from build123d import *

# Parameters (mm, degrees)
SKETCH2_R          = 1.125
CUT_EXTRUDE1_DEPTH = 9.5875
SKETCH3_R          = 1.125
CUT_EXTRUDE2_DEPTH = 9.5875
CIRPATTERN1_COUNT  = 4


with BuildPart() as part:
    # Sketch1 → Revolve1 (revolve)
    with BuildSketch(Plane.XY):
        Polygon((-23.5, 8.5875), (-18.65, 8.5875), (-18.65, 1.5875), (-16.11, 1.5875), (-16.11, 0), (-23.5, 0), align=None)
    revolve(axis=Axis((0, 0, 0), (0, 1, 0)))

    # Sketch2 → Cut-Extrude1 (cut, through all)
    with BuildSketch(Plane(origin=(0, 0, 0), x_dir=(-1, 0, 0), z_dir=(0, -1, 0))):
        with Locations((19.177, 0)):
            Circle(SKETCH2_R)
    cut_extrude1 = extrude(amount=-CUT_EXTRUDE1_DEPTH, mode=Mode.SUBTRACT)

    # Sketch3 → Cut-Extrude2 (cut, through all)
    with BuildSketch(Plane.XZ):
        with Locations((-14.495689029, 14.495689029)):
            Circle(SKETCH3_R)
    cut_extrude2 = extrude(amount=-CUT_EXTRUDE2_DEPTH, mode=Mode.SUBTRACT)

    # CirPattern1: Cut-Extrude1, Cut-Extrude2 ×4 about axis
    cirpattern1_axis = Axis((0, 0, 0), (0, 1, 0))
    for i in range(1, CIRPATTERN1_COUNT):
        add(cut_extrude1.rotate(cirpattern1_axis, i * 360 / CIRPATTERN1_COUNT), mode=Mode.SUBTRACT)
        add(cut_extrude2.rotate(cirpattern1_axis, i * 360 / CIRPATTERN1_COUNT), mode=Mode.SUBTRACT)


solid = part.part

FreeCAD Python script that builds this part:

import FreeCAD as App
import Part
import Sketcher
Q = App.Units.Quantity

doc = App.newDocument("Part")
body = doc.addObject("PartDesign::Body", "Body")

# Sketch on XY plane
sketch1 = body.newObject("Sketcher::SketchObject", "Sketch")
sketch1.AttachmentSupport = (doc.getObject("XY_Plane"), [""])
sketch1.MapMode = "FlatFace"
sketch1.addGeometry([
    Part.LineSegment(App.Vector(-18.6, 8.6, 0), App.Vector(-23.5, 8.6, 0)),  # 0
    Part.LineSegment(App.Vector(-23.5, 8.6, 0), App.Vector(-23.5, 0, 0)),  # 1
    Part.LineSegment(App.Vector(-23.5, 0, 0), App.Vector(-16.1, 0, 0)),  # 2
    Part.LineSegment(App.Vector(-16.1, 0, 0), App.Vector(-16.1, 1.6, 0)),  # 3
    Part.LineSegment(App.Vector(-16.1, 1.6, 0), App.Vector(-18.6, 1.6, 0)),  # 4
    Part.LineSegment(App.Vector(-18.6, 1.6, 0), App.Vector(-18.6, 8.6, 0)),  # 5
], False)
sketch1.addConstraint([
    Sketcher.Constraint("Coincident", 0, 2, 1, 1),
    Sketcher.Constraint("Coincident", 1, 2, 2, 1),
    Sketcher.Constraint("Coincident", 2, 2, 3, 1),
    Sketcher.Constraint("Coincident", 3, 2, 4, 1),
    Sketcher.Constraint("Coincident", 4, 2, 5, 1),
    Sketcher.Constraint("Coincident", 5, 2, 0, 1),
    Sketcher.Constraint("Horizontal", 0),
    Sketcher.Constraint("Vertical", 1),
    Sketcher.Constraint("Horizontal", 2),
    Sketcher.Constraint("Vertical", 3),
    Sketcher.Constraint("Horizontal", 4),
    Sketcher.Constraint("Vertical", 5),
    Sketcher.Constraint("PointOnObject", 1, 2, -1),
    Sketcher.Constraint("DistanceX", 4, 2, 4, 1, Q("0.1 in")),
    Sketcher.Constraint("DistanceY", 3, 1, 3, 2, Q("0.0625 in")),
    Sketcher.Constraint("DistanceX", 0, 2, 0, 1, Q("4.85 mm")),
    Sketcher.Constraint("DistanceY", 1, 2, 1, 1, Q("8.5875 mm")),
    Sketcher.Constraint("DistanceX", 0, 2, -1, 1, Q("23.5 mm")),
])
revolution = body.newObject("PartDesign::Revolution", "Revolution")
revolution.Profile = sketch1
revolution.ReferenceAxis = (sketch1, ["V_Axis"])
revolution.Angle = 360

# Sketch on XZ plane
sketch2 = body.newObject("Sketcher::SketchObject", "Sketch001")
sketch2.AttachmentSupport = (doc.getObject("XZ_Plane"), [""])
sketch2.MapMode = "FlatFace"
sketch2.addGeometry(Part.Circle(App.Vector(-19.2, 0, 0), App.Vector(0, 0, 1), 1.1), False)
sketch2.addConstraint([
    Sketcher.Constraint("PointOnObject", 0, 3, -1),
    Sketcher.Constraint("Diameter", 0, Q("2.25 mm")),
    Sketcher.Constraint("DistanceX", 0, 3, -1, 1, Q("0.755 in")),
])
pocket1 = body.newObject("PartDesign::Pocket", "Pocket")
pocket1.Profile = sketch2
pocket1.Type = "ThroughAll"

# Sketch on XZ plane
sketch3 = body.newObject("Sketcher::SketchObject", "Sketch002")
sketch3.AttachmentSupport = (doc.getObject("XZ_Plane"), [""])
sketch3.MapMode = "FlatFace"
sketch3.addGeometry(Part.Circle(App.Vector(-14.5, 14.5, 0), App.Vector(0, 0, 1), 1.1), False)
sketch3.addConstraint([
    Sketcher.Constraint("Diameter", 0, Q("2.25 mm")),
    Sketcher.Constraint("DistanceX", 0, 3, -1, 1, Q("14.495689 mm")),
    Sketcher.Constraint("DistanceY", -1, 1, 0, 3, Q("14.495689 mm")),
])
pocket2 = body.newObject("PartDesign::Pocket", "Pocket001")
pocket2.Profile = sketch3
pocket2.Type = "ThroughAll"
doc.recompute()

polarpattern = body.newObject("PartDesign::PolarPattern", "PolarPattern")
polarpattern.Originals = [pocket1, pocket2]
polarpattern.Axis = (doc.getObject("Y_Axis"), [""])
polarpattern.Angle = 360
polarpattern.Occurrences = 4
body.Tip = polarpattern

doc.recompute()
